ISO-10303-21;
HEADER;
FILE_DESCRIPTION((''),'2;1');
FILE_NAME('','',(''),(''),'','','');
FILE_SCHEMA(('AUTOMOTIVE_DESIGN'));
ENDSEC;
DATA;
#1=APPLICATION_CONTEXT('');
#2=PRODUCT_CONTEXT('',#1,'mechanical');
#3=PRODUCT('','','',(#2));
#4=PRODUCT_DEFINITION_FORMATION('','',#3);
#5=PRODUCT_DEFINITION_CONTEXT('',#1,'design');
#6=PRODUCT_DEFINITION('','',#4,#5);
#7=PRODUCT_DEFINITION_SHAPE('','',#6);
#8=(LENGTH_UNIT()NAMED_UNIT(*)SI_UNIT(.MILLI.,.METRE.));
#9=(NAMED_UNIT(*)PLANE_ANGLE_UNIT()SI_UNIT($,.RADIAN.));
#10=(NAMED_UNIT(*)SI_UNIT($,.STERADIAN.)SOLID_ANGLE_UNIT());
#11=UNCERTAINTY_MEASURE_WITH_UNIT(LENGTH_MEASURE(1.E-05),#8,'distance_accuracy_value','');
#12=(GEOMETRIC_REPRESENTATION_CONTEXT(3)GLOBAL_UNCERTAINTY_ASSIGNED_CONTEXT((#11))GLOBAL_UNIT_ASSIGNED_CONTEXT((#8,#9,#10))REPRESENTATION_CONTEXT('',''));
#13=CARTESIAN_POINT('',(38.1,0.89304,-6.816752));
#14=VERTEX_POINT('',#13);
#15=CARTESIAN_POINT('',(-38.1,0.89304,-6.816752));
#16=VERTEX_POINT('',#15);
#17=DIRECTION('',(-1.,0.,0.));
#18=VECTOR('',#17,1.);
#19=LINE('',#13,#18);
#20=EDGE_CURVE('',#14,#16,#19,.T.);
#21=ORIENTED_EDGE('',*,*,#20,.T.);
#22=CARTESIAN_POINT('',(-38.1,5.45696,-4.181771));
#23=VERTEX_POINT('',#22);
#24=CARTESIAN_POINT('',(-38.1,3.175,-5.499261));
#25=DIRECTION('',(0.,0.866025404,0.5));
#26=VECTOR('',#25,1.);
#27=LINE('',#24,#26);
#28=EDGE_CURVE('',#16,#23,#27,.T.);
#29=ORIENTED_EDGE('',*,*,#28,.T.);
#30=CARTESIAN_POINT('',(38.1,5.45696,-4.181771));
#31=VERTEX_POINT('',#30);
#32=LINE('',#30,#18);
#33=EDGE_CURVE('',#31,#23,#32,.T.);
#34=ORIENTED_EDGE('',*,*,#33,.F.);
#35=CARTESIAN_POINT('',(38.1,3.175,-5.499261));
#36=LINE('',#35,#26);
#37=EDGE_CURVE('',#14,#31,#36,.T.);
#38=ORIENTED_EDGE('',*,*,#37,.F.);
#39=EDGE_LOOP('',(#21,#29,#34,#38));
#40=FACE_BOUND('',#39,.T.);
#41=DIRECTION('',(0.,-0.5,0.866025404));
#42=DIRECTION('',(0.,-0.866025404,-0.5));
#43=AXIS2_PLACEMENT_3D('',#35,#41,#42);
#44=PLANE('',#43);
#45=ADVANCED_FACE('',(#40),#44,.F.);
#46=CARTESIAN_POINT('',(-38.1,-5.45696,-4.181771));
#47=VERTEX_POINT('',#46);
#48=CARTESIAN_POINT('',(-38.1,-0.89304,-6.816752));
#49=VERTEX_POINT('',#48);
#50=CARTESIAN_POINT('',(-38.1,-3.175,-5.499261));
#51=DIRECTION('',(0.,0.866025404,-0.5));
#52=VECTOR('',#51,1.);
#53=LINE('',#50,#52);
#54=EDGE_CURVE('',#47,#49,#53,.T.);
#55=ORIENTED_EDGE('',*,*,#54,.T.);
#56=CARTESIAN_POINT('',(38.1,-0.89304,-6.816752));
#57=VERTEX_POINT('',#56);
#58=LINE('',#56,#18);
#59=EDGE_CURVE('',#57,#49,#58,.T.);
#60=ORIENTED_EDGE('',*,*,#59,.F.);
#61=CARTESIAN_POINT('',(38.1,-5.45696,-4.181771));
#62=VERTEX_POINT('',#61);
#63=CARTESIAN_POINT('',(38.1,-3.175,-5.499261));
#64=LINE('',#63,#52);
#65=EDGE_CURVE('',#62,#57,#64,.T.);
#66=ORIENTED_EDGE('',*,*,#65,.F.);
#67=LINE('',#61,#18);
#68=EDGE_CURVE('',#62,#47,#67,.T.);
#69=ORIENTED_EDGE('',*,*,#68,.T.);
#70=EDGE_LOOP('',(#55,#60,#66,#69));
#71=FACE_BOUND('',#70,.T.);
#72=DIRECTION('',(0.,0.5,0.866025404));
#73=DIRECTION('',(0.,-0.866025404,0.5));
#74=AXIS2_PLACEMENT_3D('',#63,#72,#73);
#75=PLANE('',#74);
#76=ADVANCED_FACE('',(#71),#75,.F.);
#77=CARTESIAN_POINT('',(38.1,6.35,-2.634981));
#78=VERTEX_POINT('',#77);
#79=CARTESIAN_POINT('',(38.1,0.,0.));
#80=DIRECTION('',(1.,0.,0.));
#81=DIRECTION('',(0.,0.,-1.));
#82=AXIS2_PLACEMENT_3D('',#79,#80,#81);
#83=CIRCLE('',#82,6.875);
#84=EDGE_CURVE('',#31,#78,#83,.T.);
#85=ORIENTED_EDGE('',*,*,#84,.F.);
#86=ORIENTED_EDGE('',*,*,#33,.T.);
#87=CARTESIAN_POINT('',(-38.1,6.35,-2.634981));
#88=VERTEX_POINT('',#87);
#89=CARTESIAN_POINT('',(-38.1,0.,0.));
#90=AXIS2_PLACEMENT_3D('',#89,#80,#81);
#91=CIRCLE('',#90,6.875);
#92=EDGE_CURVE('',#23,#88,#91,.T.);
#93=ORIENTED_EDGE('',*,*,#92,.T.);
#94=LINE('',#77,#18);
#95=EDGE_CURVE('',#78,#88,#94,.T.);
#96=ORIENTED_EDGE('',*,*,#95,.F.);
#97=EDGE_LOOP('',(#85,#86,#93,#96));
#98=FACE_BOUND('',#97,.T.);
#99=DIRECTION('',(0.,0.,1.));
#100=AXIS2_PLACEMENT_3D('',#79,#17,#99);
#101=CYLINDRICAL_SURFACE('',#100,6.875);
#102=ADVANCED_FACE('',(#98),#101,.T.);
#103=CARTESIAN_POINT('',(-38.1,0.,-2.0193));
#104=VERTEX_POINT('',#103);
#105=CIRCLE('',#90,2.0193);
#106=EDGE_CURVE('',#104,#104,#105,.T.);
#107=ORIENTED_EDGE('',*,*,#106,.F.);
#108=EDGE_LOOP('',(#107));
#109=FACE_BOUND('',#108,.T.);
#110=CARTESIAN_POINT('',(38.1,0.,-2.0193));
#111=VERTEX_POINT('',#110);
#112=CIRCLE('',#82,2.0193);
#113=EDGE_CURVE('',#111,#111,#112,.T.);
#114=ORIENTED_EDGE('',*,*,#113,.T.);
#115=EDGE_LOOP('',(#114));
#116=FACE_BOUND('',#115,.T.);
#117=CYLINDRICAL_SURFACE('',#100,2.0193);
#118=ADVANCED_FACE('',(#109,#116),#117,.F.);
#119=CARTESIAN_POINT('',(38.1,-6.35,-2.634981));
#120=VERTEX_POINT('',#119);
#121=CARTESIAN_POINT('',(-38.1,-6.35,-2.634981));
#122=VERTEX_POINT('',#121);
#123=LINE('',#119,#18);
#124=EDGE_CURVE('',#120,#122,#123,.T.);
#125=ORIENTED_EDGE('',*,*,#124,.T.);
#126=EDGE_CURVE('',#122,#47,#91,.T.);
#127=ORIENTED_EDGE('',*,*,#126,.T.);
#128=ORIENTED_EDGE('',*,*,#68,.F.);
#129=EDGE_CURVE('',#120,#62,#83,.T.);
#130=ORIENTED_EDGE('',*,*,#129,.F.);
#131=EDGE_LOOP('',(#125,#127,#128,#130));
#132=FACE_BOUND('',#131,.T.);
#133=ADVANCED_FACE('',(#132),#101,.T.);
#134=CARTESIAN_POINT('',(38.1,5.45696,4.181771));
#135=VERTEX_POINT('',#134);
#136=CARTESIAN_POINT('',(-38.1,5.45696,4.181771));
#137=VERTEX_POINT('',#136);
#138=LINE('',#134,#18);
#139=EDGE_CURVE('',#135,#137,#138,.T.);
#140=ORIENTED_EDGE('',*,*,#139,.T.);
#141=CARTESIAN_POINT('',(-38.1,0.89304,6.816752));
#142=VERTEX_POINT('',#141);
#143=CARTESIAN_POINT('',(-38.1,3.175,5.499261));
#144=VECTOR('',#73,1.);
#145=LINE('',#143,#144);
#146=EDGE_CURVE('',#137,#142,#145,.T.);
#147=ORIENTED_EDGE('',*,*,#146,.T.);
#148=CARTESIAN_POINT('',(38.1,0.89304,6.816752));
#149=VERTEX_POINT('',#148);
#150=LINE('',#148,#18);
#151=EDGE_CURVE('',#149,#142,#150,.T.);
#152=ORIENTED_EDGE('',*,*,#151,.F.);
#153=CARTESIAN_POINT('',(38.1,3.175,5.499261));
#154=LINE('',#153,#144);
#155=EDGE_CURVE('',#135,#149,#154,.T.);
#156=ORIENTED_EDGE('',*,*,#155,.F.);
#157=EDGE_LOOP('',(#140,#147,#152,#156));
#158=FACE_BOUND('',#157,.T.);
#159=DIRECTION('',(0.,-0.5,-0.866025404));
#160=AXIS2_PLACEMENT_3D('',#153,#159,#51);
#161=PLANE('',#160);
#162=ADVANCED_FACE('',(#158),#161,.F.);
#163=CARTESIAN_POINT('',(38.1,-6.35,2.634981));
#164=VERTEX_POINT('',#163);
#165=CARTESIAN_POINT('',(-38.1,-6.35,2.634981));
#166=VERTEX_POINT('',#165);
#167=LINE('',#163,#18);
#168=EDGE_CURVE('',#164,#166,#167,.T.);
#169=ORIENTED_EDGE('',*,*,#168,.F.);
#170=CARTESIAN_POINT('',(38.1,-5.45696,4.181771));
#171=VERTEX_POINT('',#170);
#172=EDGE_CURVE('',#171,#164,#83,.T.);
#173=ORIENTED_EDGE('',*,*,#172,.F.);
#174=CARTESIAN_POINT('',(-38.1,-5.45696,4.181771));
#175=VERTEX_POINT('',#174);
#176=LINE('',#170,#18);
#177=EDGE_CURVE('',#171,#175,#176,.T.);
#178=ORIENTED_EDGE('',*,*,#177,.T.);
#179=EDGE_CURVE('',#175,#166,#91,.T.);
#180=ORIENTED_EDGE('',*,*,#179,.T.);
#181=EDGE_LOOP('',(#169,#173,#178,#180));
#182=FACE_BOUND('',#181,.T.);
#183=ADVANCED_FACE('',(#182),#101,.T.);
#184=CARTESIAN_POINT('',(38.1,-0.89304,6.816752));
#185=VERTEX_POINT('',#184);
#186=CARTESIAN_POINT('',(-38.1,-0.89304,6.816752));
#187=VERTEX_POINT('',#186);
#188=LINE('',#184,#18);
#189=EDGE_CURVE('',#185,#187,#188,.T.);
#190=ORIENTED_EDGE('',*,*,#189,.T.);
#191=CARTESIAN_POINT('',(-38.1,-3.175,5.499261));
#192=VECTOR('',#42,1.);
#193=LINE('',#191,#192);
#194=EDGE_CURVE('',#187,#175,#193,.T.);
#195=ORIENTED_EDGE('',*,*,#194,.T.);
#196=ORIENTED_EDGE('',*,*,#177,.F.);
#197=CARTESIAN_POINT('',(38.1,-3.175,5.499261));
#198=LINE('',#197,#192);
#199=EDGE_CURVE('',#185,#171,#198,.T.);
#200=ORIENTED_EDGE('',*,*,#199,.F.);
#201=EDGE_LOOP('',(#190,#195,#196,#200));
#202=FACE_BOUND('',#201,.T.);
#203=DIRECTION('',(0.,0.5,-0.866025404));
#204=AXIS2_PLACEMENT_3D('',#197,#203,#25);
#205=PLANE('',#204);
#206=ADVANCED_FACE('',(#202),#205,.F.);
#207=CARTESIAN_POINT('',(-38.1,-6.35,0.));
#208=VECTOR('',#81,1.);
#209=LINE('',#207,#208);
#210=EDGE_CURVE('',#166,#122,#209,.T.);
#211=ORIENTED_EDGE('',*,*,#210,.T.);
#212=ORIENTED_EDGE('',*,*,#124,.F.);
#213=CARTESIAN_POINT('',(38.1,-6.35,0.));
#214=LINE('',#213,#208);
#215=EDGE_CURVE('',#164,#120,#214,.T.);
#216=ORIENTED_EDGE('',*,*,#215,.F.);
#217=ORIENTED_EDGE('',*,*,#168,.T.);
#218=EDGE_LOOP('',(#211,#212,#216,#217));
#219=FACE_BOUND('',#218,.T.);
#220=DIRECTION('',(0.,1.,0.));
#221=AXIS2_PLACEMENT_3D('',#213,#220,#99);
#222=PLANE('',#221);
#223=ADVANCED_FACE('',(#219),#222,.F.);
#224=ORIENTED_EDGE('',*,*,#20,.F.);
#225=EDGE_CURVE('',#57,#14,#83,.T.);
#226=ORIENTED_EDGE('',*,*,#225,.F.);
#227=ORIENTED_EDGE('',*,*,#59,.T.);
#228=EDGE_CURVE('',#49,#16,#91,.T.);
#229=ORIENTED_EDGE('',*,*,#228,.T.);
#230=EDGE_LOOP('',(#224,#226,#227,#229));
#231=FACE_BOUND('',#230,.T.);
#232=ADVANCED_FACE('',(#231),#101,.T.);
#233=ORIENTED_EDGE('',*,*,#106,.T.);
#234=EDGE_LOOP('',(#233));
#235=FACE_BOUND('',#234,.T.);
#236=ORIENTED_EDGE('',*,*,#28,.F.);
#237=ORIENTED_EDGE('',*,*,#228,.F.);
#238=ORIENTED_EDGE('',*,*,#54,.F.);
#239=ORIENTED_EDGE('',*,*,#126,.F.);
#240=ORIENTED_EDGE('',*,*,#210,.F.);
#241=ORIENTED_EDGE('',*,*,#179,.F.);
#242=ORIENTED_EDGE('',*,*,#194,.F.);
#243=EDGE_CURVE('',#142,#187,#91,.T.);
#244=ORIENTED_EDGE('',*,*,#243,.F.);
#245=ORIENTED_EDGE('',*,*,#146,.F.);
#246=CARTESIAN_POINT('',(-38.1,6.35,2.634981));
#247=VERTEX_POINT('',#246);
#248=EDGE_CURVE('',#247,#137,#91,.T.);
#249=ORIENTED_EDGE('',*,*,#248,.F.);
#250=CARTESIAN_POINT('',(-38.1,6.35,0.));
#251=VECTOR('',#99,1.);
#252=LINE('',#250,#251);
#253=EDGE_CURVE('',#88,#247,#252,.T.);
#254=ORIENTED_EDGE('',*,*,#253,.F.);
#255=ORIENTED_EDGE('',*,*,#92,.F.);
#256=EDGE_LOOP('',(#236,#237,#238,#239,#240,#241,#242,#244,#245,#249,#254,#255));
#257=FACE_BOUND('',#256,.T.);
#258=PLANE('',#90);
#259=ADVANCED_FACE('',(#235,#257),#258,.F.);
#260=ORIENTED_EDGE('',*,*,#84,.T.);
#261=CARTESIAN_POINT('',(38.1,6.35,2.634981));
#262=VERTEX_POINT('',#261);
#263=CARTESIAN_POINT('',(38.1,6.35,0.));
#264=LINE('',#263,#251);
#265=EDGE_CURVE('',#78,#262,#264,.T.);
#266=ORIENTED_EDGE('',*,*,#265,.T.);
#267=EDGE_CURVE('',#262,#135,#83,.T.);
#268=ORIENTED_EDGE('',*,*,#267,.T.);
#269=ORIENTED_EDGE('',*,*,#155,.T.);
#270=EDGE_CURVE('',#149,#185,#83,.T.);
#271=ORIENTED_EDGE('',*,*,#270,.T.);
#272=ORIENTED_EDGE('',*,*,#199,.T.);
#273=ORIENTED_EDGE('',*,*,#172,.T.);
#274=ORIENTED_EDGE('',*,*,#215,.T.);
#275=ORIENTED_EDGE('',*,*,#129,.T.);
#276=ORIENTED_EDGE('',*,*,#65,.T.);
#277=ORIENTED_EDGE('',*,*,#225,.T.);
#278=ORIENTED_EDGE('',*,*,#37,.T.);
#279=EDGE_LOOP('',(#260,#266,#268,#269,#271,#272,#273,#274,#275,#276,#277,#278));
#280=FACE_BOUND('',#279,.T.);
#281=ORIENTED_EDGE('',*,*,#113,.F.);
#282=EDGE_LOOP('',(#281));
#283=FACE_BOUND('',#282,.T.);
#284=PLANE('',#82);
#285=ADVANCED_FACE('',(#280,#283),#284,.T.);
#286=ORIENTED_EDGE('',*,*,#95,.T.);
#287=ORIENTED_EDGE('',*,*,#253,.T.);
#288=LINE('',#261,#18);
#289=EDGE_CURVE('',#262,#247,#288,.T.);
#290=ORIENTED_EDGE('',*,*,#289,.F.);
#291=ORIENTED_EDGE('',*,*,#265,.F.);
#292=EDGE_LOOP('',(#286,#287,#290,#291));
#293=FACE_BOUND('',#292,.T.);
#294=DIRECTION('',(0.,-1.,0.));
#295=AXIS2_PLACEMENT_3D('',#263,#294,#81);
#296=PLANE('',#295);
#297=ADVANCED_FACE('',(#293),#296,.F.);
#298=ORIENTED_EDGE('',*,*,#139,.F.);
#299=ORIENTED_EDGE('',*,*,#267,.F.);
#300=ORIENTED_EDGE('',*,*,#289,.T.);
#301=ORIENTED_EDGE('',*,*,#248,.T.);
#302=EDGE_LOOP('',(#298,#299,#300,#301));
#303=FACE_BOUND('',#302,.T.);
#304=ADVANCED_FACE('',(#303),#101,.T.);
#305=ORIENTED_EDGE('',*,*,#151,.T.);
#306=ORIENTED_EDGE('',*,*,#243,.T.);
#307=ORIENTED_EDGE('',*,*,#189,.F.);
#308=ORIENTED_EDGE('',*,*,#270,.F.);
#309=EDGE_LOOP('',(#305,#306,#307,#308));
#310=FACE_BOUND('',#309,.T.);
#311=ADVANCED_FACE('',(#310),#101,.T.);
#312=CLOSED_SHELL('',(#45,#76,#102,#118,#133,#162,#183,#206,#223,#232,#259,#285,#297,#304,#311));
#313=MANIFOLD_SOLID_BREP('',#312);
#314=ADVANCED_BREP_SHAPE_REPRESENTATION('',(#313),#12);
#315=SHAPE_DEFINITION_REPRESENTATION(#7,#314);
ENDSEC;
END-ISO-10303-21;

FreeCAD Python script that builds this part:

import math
import FreeCAD as App
import Part
import Sketcher

V = App.Vector
Q = App.Units.Quantity

doc = App.newDocument("Part")
body = doc.addObject("PartDesign::Body", "Body")

# Sketch on YZ plane
sketch1 = body.newObject("Sketcher::SketchObject", "Sketch")
sketch1.AttachmentSupport = (doc.getObject("YZ_Plane"), [""])
sketch1.MapMode = "FlatFace"
sketch1.addGeometry(Part.ArcOfCircle(Part.Circle(V(0, 0, 0), V(0, 0, 1), 6.875), math.radians(-90), math.radians(-82.536379)), False)
sketch1.addGeometry(Part.LineSegment(V(0.89304, -6.816752, 0), V(5.45696, -4.181771, 0)), False)
sketch1.addGeometry(Part.ArcOfCircle(Part.Circle(V(0, 0, 0), V(0, 0, 1), 6.875), math.radians(-37.463621), math.radians(-22.536379)), False)
sketch1.addGeometry(Part.LineSegment(V(6.35, -2.634981, 0), V(6.35, 2.634981, 0)), False)
sketch1.addGeometry(Part.ArcOfCircle(Part.Circle(V(0, 0, 0), V(0, 0, 1), 6.875), math.radians(22.536379), math.radians(37.463621)), False)
sketch1.addGeometry(Part.LineSegment(V(5.45696, 4.181771, 0), V(0.89304, 6.816752, 0)), False)
sketch1.addGeometry(Part.ArcOfCircle(Part.Circle(V(0, 0, 0), V(0, 0, 1), 6.875), math.radians(82.536379), math.radians(97.463621)), False)
sketch1.addGeometry(Part.LineSegment(V(-0.89304, 6.816752, 0), V(-5.45696, 4.181771, 0)), False)
sketch1.addGeometry(Part.ArcOfCircle(Part.Circle(V(0, 0, 0), V(0, 0, 1), 6.875), math.radians(142.536379), math.radians(157.463621)), False)
sketch1.addGeometry(Part.LineSegment(V(-6.35, 2.634981, 0), V(-6.35, -2.634981, 0)), False)
sketch1.addGeometry(Part.ArcOfCircle(Part.Circle(V(0, 0, 0), V(0, 0, 1), 6.875), math.radians(-157.463621), math.radians(-142.536379)), False)
sketch1.addGeometry(Part.LineSegment(V(-5.45696, -4.181771, 0), V(-0.89304, -6.816752, 0)), False)
sketch1.addGeometry(Part.ArcOfCircle(Part.Circle(V(0, 0, 0), V(0, 0, 1), 6.875), math.radians(-97.463621), math.radians(-90)), False)
sketch1.addGeometry(Part.Circle(V(0, 0, 0), V(0, 0, 1), 2.0193), False)
sketch1.addConstraint(Sketcher.Constraint("Coincident", 0, 2, 1, 1))
sketch1.addConstraint(Sketcher.Constraint("Coincident", 1, 2, 2, 1))
sketch1.addConstraint(Sketcher.Constraint("Coincident", 2, 2, 3, 1))
sketch1.addConstraint(Sketcher.Constraint("Coincident", 3, 2, 4, 1))
sketch1.addConstraint(Sketcher.Constraint("Coincident", 4, 2, 5, 1))
sketch1.addConstraint(Sketcher.Constraint("Coincident", 5, 2, 6, 1))
sketch1.addConstraint(Sketcher.Constraint("Coincident", 6, 2, 7, 1))
sketch1.addConstraint(Sketcher.Constraint("Coincident", 7, 2, 8, 1))
sketch1.addConstraint(Sketcher.Constraint("Coincident", 8, 2, 9, 1))
sketch1.addConstraint(Sketcher.Constraint("Coincident", 9, 2, 10, 1))
sketch1.addConstraint(Sketcher.Constraint("Coincident", 10, 2, 11, 1))
sketch1.addConstraint(Sketcher.Constraint("Coincident", 11, 2, 12, 1))
sketch1.addConstraint(Sketcher.Constraint("Tangent", 12, 2, 0, 1))
sketch1.addConstraint(Sketcher.Constraint("Vertical", 3))
sketch1.addConstraint(Sketcher.Constraint("Vertical", 9))
sketch1.addConstraint(Sketcher.Constraint("Coincident", 0, 3, -1, 1))
sketch1.addConstraint(Sketcher.Constraint("Coincident", 2, 3, -1, 1))
sketch1.addConstraint(Sketcher.Constraint("Coincident", 4, 3, -1, 1))
sketch1.addConstraint(Sketcher.Constraint("Coincident", 6, 3, -1, 1))
sketch1.addConstraint(Sketcher.Constraint("Coincident", 8, 3, -1, 1))
sketch1.addConstraint(Sketcher.Constraint("Coincident", 10, 3, -1, 1))
sketch1.addConstraint(Sketcher.Constraint("Coincident", 13, 3, -1, 1))
sketch1.addConstraint(Sketcher.Constraint("Equal", 0, 2))
sketch1.addConstraint(Sketcher.Constraint("Equal", 2, 4))
sketch1.addConstraint(Sketcher.Constraint("Equal", 4, 6))
sketch1.addConstraint(Sketcher.Constraint("Equal", 6, 8))
sketch1.addConstraint(Sketcher.Constraint("Equal", 8, 10))
sketch1.addConstraint(Sketcher.Constraint("Equal", 10, 12))
sketch1.addConstraint(Sketcher.Constraint("PointOnObject", 12, 2, -2))
sketch1.addConstraint(Sketcher.Constraint("Parallel", 1, 7))
sketch1.addConstraint(Sketcher.Constraint("Parallel", 5, 11))
sketch1.addConstraint(Sketcher.Constraint("Horizontal", 5, 2, 6, 2))
sketch1.addConstraint(Sketcher.Constraint("Horizontal", 4, 2, 7, 2))
sketch1.addConstraint(Sketcher.Constraint("Horizontal", 3, 2, 8, 2))
sketch1.addConstraint(Sketcher.Constraint("Horizontal", 1, 2, 10, 2))
sketch1.addConstraint(Sketcher.Constraint("Vertical", 1, 2, 4, 2))
sketch1.addConstraint(Sketcher.Constraint("Diameter", 13, Q("0.159 in")))
sketch1.addConstraint(Sketcher.Constraint("Angle", 1, Q("30 deg")))
sketch1.addConstraint(Sketcher.Constraint("DistanceX", -1, 1, 2, 2, Q("0.25 in")))
sketch1.addConstraint(Sketcher.Constraint("Radius", 0, Q("6.875 mm")))
sketch1.addConstraint(Sketcher.Constraint("Distance", 1, Q("5.269962 mm")))
pad1 = body.newObject("PartDesign::Pad", "Pad")
pad1.Profile = sketch1
pad1.Length = Q("3 in")
pad1.Midplane = True

doc.recompute()
